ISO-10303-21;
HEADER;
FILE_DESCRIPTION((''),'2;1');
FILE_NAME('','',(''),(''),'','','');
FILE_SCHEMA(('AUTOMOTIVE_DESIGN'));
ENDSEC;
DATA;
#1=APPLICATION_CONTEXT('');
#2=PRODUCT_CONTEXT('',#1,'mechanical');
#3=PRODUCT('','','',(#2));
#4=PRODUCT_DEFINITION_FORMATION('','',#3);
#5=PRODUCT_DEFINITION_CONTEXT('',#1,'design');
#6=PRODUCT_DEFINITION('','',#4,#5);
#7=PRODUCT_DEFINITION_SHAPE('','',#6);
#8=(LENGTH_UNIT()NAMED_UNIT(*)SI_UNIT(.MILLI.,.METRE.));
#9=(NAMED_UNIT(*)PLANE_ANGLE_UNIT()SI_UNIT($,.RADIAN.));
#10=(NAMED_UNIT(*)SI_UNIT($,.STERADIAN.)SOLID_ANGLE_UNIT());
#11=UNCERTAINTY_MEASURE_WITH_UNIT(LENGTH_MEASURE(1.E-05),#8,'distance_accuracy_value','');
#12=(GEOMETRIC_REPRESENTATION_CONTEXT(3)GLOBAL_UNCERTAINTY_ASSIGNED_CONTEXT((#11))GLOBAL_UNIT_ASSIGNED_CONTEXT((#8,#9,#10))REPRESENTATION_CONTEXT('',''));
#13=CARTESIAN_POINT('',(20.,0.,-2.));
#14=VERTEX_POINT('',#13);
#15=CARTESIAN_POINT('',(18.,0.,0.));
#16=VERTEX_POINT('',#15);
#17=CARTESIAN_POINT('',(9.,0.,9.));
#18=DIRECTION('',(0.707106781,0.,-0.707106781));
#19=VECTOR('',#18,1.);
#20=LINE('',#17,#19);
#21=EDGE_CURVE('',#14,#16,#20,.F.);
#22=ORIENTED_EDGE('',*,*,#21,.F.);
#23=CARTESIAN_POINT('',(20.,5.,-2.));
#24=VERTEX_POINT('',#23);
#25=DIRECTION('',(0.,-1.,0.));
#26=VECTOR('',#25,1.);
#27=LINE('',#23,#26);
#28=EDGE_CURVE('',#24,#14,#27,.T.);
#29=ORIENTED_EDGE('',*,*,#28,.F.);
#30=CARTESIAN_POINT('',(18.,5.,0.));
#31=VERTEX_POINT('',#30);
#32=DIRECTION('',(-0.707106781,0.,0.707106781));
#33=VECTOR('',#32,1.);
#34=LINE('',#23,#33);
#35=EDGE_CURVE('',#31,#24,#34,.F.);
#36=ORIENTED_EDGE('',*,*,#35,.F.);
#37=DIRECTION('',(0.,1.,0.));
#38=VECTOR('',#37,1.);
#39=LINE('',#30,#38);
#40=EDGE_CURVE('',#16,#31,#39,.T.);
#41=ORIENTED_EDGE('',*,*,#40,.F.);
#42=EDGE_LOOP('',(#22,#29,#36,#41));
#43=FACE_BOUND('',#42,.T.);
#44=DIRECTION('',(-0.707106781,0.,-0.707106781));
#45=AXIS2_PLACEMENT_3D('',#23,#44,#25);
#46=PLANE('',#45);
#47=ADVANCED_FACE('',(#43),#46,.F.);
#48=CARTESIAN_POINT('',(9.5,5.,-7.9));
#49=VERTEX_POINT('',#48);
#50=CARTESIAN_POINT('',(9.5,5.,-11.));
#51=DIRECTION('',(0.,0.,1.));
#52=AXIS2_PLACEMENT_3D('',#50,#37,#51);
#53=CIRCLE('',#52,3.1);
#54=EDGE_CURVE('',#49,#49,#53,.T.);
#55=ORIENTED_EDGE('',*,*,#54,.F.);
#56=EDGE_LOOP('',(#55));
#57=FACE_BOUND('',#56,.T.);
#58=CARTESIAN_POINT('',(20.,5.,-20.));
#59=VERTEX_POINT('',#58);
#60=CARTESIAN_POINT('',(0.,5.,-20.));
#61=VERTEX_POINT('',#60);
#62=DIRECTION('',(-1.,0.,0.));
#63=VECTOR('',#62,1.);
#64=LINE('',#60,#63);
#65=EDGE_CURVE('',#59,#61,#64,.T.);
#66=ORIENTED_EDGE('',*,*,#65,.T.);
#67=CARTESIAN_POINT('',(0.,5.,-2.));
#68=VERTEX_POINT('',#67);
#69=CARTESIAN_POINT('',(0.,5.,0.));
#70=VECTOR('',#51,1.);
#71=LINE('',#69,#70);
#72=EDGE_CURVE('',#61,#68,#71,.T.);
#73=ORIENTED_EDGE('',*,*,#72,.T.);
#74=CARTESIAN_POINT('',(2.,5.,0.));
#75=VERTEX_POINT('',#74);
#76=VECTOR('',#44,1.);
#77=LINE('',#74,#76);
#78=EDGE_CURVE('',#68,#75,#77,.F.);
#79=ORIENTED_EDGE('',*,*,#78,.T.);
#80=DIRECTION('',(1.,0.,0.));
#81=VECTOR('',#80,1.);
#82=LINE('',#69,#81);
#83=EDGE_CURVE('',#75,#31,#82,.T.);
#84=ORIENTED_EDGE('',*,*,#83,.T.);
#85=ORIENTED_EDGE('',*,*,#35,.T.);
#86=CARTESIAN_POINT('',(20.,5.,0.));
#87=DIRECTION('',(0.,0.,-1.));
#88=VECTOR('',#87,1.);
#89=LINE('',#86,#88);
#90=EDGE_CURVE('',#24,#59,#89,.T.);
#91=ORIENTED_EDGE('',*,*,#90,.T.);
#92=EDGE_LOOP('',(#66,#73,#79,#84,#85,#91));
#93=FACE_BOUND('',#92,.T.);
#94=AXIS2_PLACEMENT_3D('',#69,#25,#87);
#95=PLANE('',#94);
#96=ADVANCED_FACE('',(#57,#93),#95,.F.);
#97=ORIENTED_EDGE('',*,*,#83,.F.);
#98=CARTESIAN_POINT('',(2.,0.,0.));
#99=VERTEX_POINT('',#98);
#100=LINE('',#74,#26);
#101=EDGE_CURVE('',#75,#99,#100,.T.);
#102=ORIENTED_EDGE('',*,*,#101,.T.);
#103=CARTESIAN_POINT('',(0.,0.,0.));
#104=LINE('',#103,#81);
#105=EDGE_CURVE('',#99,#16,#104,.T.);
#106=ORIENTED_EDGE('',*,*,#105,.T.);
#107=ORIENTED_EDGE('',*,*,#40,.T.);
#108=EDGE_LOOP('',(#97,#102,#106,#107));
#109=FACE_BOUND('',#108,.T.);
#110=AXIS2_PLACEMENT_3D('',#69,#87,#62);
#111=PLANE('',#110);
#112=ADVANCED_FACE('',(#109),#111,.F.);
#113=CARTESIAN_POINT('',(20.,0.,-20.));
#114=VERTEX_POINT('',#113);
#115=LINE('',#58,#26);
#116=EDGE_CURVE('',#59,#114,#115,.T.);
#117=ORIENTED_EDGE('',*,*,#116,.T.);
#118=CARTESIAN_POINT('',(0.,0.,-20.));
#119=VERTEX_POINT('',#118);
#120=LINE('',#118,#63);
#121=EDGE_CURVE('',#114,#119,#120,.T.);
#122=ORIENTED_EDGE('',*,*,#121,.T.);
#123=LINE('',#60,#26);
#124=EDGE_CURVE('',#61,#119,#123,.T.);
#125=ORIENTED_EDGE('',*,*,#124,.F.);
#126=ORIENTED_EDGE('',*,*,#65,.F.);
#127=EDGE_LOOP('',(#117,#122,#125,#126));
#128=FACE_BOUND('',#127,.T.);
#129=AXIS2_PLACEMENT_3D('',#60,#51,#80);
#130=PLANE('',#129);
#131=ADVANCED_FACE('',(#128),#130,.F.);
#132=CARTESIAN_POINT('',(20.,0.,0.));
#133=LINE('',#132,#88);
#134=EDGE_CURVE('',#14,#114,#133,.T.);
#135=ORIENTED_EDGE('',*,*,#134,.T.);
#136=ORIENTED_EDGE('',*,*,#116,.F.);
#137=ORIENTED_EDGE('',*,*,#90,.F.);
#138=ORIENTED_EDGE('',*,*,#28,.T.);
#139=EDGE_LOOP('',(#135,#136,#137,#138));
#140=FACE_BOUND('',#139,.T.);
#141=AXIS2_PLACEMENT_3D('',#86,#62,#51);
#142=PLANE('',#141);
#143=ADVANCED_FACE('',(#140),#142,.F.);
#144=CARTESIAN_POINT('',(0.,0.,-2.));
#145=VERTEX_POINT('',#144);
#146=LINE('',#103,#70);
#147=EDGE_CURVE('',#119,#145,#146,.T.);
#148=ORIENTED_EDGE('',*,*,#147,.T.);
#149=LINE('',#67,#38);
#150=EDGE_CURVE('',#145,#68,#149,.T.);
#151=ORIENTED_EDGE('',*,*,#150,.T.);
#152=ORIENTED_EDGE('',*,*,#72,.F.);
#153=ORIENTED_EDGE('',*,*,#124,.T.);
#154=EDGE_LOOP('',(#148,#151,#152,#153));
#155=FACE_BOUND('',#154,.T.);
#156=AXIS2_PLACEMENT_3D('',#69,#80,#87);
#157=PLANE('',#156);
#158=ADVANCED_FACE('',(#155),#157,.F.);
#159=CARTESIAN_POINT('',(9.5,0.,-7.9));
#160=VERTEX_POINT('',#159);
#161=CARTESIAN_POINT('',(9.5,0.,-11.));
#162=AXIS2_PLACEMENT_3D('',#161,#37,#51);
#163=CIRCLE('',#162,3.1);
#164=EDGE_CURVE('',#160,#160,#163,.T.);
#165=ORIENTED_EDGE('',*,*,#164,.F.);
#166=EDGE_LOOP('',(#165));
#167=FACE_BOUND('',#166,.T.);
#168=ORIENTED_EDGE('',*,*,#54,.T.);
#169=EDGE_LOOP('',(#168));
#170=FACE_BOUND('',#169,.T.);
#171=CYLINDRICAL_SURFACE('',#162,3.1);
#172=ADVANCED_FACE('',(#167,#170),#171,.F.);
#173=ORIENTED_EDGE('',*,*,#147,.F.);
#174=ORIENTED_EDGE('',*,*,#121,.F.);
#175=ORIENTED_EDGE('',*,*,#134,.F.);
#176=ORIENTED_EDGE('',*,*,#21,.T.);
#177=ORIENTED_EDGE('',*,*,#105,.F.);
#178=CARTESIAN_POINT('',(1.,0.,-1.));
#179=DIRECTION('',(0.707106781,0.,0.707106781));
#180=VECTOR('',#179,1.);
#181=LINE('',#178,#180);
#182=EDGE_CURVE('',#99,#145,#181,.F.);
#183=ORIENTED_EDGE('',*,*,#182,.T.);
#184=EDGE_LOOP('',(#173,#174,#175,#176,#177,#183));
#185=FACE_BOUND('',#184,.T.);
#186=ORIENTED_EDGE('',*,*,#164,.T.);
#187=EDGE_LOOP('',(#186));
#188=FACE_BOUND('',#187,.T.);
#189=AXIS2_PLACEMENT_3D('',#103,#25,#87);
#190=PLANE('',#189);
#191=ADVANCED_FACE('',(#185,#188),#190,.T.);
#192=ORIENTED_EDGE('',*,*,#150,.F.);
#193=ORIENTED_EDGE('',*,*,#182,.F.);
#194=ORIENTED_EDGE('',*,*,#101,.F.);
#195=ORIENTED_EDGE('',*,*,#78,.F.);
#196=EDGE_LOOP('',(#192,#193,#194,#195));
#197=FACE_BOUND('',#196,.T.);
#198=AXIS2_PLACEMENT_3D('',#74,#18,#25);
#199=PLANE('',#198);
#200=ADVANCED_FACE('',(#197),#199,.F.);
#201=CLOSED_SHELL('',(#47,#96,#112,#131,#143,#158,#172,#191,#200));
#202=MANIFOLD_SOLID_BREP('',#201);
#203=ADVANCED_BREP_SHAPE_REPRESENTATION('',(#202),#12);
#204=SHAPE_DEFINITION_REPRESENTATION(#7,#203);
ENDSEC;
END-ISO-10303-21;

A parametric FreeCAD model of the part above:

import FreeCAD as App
import Part
import Sketcher
from FreeCAD import Vector


def edges_at(feature, points):
    """Names of the edges that pass closest to the given points."""
    edges = feature.Shape.Edges
    near = lambda p: min(range(len(edges)), key=lambda i: edges[i].distToShape(Part.Vertex(*p))[0])
    return sorted({f"Edge{near(p) + 1}" for p in points})


def add_polygon(sketch, points):
    """Adds a closed chain of lines whose ends are joined by coincident constraints."""
    first, n = sketch.GeometryCount, len(points)
    for a, b in zip(points, points[1:] + points[:1]):
        sketch.addGeometry(Part.LineSegment(App.Vector(*a, 0), App.Vector(*b, 0)), False)
    for i in range(n):
        sketch.addConstraint(Sketcher.Constraint("Coincident", first + i, 2, first + (i + 1) % n, 1))

doc = App.newDocument("Part")
body = doc.addObject("PartDesign::Body", "Body")

sketch1 = body.newObject("Sketcher::SketchObject", "Sketch")
sketch1.AttachmentSupport = (doc.getObject("XZ_Plane"), [""])
sketch1.MapMode = "FlatFace"
add_polygon(sketch1, [(0, -20), (0, 0), (20, 0), (20, -20)])
sketch1.addConstraint([
    Sketcher.Constraint("Vertical", 0),
    Sketcher.Constraint("Horizontal", 1),
    Sketcher.Constraint("Vertical", 2),
    Sketcher.Constraint("Horizontal", 3),
    Sketcher.Constraint("Coincident", 0, 2, -1, 1),
    Sketcher.Constraint("Equal", 3, 0),
    Sketcher.Constraint("DistanceX", 1, 1, 1, 2, 20.0),
])
pad1 = body.newObject("PartDesign::Pad", "Pad")
pad1.Profile = sketch1
pad1.Length = 5
pad1.Reversed = True

sketch2 = body.newObject("Sketcher::SketchObject", "Sketch001")
sketch2.AttachmentSupport = (doc.getObject("XZ_Plane"), [""])
sketch2.MapMode = "FlatFace"
sketch2.AttachmentOffset = App.Placement(Vector(0, 0, -5), App.Rotation())
sketch2.addGeometry(Part.Circle(Vector(9.5, -11, 0), Vector(0, 0, 1), 3.1), False)
sketch2.addConstraint([
    Sketcher.Constraint("Diameter", 0, 6.2),
    Sketcher.Constraint("DistanceY", 0, 3, -1, 1, 11.0),
    Sketcher.Constraint("DistanceX", -1, 1, 0, 3, 9.5),
])
pocket1 = body.newObject("PartDesign::Pocket", "Pocket")
pocket1.Profile = sketch2
pocket1.Length = 5
pocket1.Reversed = True
doc.recompute()

chamfer = body.newObject("PartDesign::Chamfer", "Chamfer")
chamfer.Base = (pocket1, edges_at(pocket1, [(20, 2.5, 0), (0, 2.5, 0)]))
chamfer.Size = 2

doc.recompute()
